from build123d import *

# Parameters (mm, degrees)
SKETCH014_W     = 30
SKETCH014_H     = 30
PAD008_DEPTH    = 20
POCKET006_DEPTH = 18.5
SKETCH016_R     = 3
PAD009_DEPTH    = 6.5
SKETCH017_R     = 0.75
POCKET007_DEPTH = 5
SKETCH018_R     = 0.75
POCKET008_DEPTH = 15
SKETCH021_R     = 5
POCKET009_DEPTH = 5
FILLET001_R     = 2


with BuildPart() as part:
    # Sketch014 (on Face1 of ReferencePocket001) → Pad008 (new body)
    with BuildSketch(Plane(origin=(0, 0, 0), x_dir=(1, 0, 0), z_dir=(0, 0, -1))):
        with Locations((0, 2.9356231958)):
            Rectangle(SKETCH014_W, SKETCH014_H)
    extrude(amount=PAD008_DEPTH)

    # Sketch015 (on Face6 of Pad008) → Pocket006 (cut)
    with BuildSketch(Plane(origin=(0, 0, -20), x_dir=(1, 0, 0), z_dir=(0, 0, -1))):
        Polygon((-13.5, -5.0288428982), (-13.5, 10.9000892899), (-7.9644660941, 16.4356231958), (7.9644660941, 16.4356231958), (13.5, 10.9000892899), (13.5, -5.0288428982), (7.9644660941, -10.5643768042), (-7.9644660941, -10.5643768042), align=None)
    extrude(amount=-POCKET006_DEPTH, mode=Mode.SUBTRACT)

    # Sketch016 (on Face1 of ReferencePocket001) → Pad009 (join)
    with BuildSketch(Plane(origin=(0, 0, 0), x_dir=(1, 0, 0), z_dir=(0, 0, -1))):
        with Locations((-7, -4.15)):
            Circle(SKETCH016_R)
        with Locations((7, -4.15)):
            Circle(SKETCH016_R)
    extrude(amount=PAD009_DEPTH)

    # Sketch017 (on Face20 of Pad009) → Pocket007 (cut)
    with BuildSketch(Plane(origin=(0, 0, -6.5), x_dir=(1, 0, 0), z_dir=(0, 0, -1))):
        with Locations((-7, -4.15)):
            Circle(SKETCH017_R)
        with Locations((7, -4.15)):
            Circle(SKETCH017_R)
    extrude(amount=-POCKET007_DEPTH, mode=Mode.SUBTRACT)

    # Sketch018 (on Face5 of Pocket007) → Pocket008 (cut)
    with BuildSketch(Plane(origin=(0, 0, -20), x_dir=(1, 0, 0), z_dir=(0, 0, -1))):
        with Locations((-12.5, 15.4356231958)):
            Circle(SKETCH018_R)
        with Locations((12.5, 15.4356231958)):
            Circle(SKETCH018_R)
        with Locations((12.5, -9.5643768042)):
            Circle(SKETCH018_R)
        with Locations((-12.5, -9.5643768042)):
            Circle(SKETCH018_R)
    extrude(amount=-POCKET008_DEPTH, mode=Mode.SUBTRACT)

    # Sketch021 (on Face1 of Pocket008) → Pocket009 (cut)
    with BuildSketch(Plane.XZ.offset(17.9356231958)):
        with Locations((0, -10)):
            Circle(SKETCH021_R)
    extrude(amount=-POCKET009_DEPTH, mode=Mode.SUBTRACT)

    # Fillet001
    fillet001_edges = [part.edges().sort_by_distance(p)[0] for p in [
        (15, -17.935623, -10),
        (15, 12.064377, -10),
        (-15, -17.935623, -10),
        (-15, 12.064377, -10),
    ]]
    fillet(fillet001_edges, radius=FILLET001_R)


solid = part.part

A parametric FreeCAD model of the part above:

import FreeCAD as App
import Part
import Sketcher
from FreeCAD import Vector
Q = App.Units.Quantity


def edges_at(feature, points):
    """Names of the edges that pass closest to the given points."""
    edges = feature.Shape.Edges
    near = lambda p: min(range(len(edges)), key=lambda i: edges[i].distToShape(Part.Vertex(*p))[0])
    return sorted({f"Edge{near(p) + 1}" for p in points})

doc = App.newDocument("Part")
body = doc.addObject("PartDesign::Body", "Body")

# Sketch on XY plane
sketch1 = body.newObject("Sketcher::SketchObject", "Sketch")
sketch1.AttachmentSupport = (doc.getObject("XY_Plane"), [""])
sketch1.MapMode = "FlatFace"
sketch1.addGeometry([
    Part.LineSegment(Vector(-15, -18, 0), Vector(-15, 12, 0)),
    Part.LineSegment(Vector(-15, 12, 0), Vector(15, 12, 0)),
    Part.LineSegment(Vector(15, 12, 0), Vector(15, -18, 0)),
    Part.LineSegment(Vector(15, -18, 0), Vector(-15, -18, 0)),
], False)
sketch1.addConstraint([
    Sketcher.Constraint("Coincident", 0, 2, 1, 1),
    Sketcher.Constraint("Coincident", 1, 2, 2, 1),
    Sketcher.Constraint("Coincident", 2, 2, 3, 1),
    Sketcher.Constraint("Coincident", 3, 2, 0, 1),
    Sketcher.Constraint("Vertical", 0),
    Sketcher.Constraint("Horizontal", 1),
    Sketcher.Constraint("Vertical", 2),
    Sketcher.Constraint("Horizontal", 3),
    Sketcher.Constraint("Equal", 3, 0),
    Sketcher.Constraint("DistanceX", 1, 1, 1, 2, Q("30 mm")),
    Sketcher.Constraint("DistanceX", 0, 2, -1, 1, Q("15 mm")),
    Sketcher.Constraint("DistanceY", -1, 1, 0, 2, Q("12.064377 mm")),
])
pad1 = body.newObject("PartDesign::Pad", "Pad")
pad1.Profile = sketch1
pad1.Length = 20
pad1.Reversed = True

# Sketch on XY plane
sketch2 = body.newObject("Sketcher::SketchObject", "Sketch001")
sketch2.AttachmentSupport = (doc.getObject("XY_Plane"), [""])
sketch2.MapMode = "FlatFace"
sketch2.AttachmentOffset = App.Placement(Vector(0, 0, -20), App.Rotation())
sketch2.addGeometry([
    Part.LineSegment(Vector(-14, -11, 0), Vector(-14, 5, 0)),  # 0
    Part.LineSegment(Vector(-14, 5, 0), Vector(-8, 11, 0)),  # 1
    Part.LineSegment(Vector(-8, 11, 0), Vector(8, 11, 0)),  # 2
    Part.LineSegment(Vector(8, 11, 0), Vector(14, 5, 0)),  # 3
    Part.LineSegment(Vector(14, 5, 0), Vector(14, -11, 0)),  # 4
    Part.LineSegment(Vector(14, -11, 0), Vector(8, -16, 0)),  # 5
    Part.LineSegment(Vector(8, -16, 0), Vector(-8, -16, 0)),  # 6
    Part.LineSegment(Vector(-8, -16, 0), Vector(-14, -11, 0)),  # 7
], False)
sketch2.addConstraint([
    Sketcher.Constraint("Coincident", 0, 2, 1, 1),
    Sketcher.Constraint("Coincident", 1, 2, 2, 1),
    Sketcher.Constraint("Coincident", 2, 2, 3, 1),
    Sketcher.Constraint("Coincident", 3, 2, 4, 1),
    Sketcher.Constraint("Coincident", 4, 2, 5, 1),
    Sketcher.Constraint("Coincident", 5, 2, 6, 1),
    Sketcher.Constraint("Coincident", 6, 2, 7, 1),
    Sketcher.Constraint("Coincident", 7, 2, 0, 1),
    Sketcher.Constraint("Vertical", 0),
    Sketcher.Constraint("Horizontal", 2),
    Sketcher.Constraint("Vertical", 4),
    Sketcher.Constraint("Horizontal", 6),
    Sketcher.Constraint("Symmetric", 0, 2, 3, 2, -2),
    Sketcher.Constraint("Perpendicular", 1, 3),
    Sketcher.Constraint("Perpendicular", 3, 5),
    Sketcher.Constraint("Perpendicular", 5, 7),
    Sketcher.Constraint("Horizontal", 4, 2, 7, 2),
    Sketcher.Constraint("Vertical", 2, 2, 5, 2),
    Sketcher.Constraint("Vertical", 1, 2, 6, 2),
    Sketcher.Constraint("Equal", 6, 0),
    Sketcher.Constraint("DistanceX", 0, 2, 3, 2, Q("27 mm")),
    Sketcher.Constraint("DistanceX", 2, 1, 2, 2, Q("15.928932 mm")),
    Sketcher.Constraint("DistanceY", 4, 2, -1, 1, Q("10.900089 mm")),
])
pocket1 = body.newObject("PartDesign::Pocket", "Pocket")
pocket1.Profile = sketch2
pocket1.Length = 18.5
pocket1.Reversed = True

# Sketch on XY plane
sketch3 = body.newObject("Sketcher::SketchObject", "Sketch002")
sketch3.AttachmentSupport = (doc.getObject("XY_Plane"), [""])
sketch3.MapMode = "FlatFace"
sketch3.addGeometry([
    Part.Circle(Vector(-7, 4.2, 0), Vector(0, 0, 1), 3),
    Part.Circle(Vector(7, 4.2, 0), Vector(0, 0, 1), 3),
], False)
sketch3.addConstraint([
    Sketcher.Constraint("Equal", 0, 1),
    Sketcher.Constraint("Symmetric", 0, 3, 1, 3, -2),
    Sketcher.Constraint("Diameter", 0, Q("6 mm")),
    Sketcher.Constraint("DistanceX", 0, 3, -1, 1, Q("7 mm")),
    Sketcher.Constraint("DistanceY", -1, 1, 0, 3, Q("4.15 mm")),
])
pad2 = body.newObject("PartDesign::Pad", "Pad001")
pad2.Profile = sketch3
pad2.Length = 6.5
pad2.Reversed = True

# Sketch on XY plane
sketch4 = body.newObject("Sketcher::SketchObject", "Sketch003")
sketch4.AttachmentSupport = (doc.getObject("XY_Plane"), [""])
sketch4.MapMode = "FlatFace"
sketch4.AttachmentOffset = App.Placement(Vector(0, 0, -6.5), App.Rotation())
sketch4.addGeometry([
    Part.Circle(Vector(-7, 4.2, 0), Vector(0, 0, 1), 0.8),
    Part.Circle(Vector(7, 4.2, 0), Vector(0, 0, 1), 0.8),
], False)
sketch4.addConstraint([
    Sketcher.Constraint("Equal", 0, 1),
    Sketcher.Constraint("Symmetric", 0, 3, 1, 3, -2),
    Sketcher.Constraint("Diameter", 0, Q("1.5 mm")),
    Sketcher.Constraint("DistanceX", 0, 3, -1, 1, Q("7 mm")),
    Sketcher.Constraint("DistanceY", -1, 1, 0, 3, Q("4.15 mm")),
])
pocket2 = body.newObject("PartDesign::Pocket", "Pocket001")
pocket2.Profile = sketch4
pocket2.Length = 5
pocket2.Reversed = True

# Sketch on XY plane
sketch5 = body.newObject("Sketcher::SketchObject", "Sketch004")
sketch5.AttachmentSupport = (doc.getObject("XY_Plane"), [""])
sketch5.MapMode = "FlatFace"
sketch5.AttachmentOffset = App.Placement(Vector(0, 0, -20), App.Rotation())
sketch5.addGeometry([
    Part.Circle(Vector(-12.5, -15.4, 0), Vector(0, 0, 1), 0.8),
    Part.Circle(Vector(12.5, -15.4, 0), Vector(0, 0, 1), 0.8),
    Part.Circle(Vector(12.5, 9.6, 0), Vector(0, 0, 1), 0.8),
    Part.Circle(Vector(-12.5, 9.6, 0), Vector(0, 0, 1), 0.8),
], False)
sketch5.addConstraint([
    Sketcher.Constraint("Equal", 0, 1),
    Sketcher.Constraint("Equal", 1, 2),
    Sketcher.Constraint("Equal", 2, 3),
    Sketcher.Constraint("Symmetric", 0, 3, 1, 3, -2),
    Sketcher.Constraint("Symmetric", 2, 3, 3, 3, -2),
    Sketcher.Constraint("Vertical", 1, 3, 2, 3),
    Sketcher.Constraint("Diameter", 0, Q("1.5 mm")),
    Sketcher.Constraint("DistanceX", 0, 3, 1, 3, Q("25 mm")),
    Sketcher.Constraint("DistanceY", 1, 3, 2, 3, Q("25 mm")),
    Sketcher.Constraint("DistanceY", 0, 3, -1, 1, Q("15.435623 mm")),
])
pocket3 = body.newObject("PartDesign::Pocket", "Pocket002")
pocket3.Profile = sketch5
pocket3.Length = 15
pocket3.Reversed = True

# Sketch on XZ plane
sketch6 = body.newObject("Sketcher::SketchObject", "Sketch005")
sketch6.AttachmentSupport = (doc.getObject("XZ_Plane"), [""])
sketch6.MapMode = "FlatFace"
sketch6.AttachmentOffset = App.Placement(Vector(0, 0, 17.935623), App.Rotation())
sketch6.addGeometry(Part.Circle(Vector(0, -10, 0), Vector(0, 0, 1), 5), False)
sketch6.addConstraint([
    Sketcher.Constraint("PointOnObject", 0, 3, -2),
    Sketcher.Constraint("Diameter", 0, Q("10 mm")),
    Sketcher.Constraint("DistanceY", 0, 3, -1, 1, Q("10 mm")),
])
pocket4 = body.newObject("PartDesign::Pocket", "Pocket003")
pocket4.Profile = sketch6
pocket4.Length = 5
doc.recompute()

fillet = body.newObject("PartDesign::Fillet", "Fillet")
fillet.Base = (pocket4, edges_at(pocket4, [
    (15, -17.936, -10),
    (15, 12.064, -10),
    (-15, -17.936, -10),
    (-15, 12.064, -10),
]))
fillet.Radius = 2

doc.recompute()
